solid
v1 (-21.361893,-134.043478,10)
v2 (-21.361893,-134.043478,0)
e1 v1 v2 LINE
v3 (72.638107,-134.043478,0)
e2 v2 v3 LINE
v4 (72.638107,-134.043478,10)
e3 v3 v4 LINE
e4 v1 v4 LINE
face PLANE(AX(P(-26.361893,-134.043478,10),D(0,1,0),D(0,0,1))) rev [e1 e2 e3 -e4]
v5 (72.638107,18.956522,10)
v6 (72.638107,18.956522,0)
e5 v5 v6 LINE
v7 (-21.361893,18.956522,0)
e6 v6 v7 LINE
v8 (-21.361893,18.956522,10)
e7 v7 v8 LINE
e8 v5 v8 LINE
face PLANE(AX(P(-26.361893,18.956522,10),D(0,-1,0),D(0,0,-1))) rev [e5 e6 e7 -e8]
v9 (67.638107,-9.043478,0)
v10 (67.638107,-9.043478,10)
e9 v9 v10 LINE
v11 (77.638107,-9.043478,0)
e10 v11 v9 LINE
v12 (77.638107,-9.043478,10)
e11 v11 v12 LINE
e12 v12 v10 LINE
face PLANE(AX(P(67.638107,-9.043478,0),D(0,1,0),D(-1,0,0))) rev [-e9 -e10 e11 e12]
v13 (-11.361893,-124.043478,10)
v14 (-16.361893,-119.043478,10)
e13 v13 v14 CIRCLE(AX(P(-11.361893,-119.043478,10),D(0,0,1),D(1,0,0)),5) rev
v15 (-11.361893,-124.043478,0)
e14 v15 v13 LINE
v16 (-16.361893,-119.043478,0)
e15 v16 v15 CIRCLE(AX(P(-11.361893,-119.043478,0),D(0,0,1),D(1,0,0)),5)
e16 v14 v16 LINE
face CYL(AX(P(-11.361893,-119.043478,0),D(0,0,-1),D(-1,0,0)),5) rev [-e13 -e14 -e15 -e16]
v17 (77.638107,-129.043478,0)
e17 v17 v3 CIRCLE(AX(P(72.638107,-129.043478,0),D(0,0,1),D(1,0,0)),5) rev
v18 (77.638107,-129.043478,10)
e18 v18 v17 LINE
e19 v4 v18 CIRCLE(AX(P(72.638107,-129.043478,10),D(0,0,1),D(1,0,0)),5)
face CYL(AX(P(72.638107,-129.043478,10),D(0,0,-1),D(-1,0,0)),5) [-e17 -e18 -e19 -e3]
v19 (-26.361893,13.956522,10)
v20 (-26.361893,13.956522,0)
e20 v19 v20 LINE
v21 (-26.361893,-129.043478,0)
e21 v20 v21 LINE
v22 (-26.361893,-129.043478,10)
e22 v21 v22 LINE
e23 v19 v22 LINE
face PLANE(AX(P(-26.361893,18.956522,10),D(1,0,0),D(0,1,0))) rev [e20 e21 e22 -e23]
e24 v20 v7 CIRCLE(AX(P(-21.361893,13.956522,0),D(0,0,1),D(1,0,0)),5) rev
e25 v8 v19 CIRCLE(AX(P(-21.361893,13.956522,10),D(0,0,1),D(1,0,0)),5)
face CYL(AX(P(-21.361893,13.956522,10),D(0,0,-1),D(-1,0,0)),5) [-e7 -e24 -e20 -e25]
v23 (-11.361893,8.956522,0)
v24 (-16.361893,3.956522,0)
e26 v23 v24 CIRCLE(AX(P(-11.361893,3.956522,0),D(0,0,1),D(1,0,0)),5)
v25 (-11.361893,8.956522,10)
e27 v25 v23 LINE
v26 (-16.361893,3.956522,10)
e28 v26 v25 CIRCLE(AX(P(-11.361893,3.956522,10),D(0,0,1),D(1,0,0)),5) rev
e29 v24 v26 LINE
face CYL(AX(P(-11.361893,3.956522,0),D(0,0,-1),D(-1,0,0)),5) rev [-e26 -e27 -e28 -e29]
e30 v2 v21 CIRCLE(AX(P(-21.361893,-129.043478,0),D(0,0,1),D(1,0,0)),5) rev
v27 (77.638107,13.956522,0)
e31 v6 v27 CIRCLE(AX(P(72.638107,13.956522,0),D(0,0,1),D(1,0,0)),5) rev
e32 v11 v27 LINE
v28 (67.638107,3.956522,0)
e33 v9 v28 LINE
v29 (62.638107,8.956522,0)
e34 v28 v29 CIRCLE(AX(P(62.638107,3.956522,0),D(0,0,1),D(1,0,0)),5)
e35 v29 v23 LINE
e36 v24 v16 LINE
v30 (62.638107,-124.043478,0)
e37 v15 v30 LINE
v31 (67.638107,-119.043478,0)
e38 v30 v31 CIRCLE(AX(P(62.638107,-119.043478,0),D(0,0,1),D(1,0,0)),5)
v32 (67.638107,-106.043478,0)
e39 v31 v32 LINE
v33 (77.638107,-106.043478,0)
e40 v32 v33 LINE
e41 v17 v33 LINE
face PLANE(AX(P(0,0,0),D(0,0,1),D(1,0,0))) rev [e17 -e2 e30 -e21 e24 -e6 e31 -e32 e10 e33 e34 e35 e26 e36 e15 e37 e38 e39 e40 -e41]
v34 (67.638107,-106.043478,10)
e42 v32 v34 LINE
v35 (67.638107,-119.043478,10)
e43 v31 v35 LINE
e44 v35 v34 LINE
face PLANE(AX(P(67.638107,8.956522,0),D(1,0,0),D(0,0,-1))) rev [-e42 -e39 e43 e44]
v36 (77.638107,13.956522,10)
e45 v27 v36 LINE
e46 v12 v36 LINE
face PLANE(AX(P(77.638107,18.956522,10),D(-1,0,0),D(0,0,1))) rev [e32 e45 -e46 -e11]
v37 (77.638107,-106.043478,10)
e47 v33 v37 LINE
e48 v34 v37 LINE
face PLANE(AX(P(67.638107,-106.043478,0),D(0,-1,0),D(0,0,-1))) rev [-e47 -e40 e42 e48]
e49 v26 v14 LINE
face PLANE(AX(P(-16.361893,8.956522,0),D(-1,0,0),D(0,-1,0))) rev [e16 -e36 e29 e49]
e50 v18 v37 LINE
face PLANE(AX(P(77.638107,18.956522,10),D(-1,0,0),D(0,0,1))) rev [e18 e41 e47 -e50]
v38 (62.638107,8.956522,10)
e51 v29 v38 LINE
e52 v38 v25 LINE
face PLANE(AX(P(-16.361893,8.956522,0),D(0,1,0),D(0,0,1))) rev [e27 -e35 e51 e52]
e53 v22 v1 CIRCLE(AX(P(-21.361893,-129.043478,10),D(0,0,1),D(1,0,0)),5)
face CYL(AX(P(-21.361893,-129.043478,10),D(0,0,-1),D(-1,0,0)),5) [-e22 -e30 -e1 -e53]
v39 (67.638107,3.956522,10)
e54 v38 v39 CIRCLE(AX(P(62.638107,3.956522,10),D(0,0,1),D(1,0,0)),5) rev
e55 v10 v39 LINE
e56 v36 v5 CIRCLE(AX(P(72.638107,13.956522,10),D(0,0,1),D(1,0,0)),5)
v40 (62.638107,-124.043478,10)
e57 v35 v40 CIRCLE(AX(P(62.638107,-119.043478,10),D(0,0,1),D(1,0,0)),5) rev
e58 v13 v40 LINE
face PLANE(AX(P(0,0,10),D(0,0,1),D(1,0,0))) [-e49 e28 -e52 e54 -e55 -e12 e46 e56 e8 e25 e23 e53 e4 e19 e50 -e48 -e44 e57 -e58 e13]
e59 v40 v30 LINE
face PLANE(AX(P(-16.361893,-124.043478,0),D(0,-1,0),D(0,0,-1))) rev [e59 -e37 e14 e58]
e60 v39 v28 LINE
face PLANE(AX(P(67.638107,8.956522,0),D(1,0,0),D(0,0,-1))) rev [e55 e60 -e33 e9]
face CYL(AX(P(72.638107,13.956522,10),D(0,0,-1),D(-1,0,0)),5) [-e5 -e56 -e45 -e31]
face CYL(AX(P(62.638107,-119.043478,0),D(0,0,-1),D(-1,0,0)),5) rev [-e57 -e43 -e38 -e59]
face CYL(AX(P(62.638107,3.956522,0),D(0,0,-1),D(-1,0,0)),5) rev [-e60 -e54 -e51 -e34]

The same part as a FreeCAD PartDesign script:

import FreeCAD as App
import Part
import Sketcher
from FreeCAD import Vector


def edges_at(feature, points):
    """Names of the edges that pass closest to the given points."""
    edges = feature.Shape.Edges
    near = lambda p: min(range(len(edges)), key=lambda i: edges[i].distToShape(Part.Vertex(*p))[0])
    return sorted({f"Edge{near(p) + 1}" for p in points})


def add_polygon(sketch, points):
    """Adds a closed chain of lines whose ends are joined by coincident constraints."""
    first, n = sketch.GeometryCount, len(points)
    for a, b in zip(points, points[1:] + points[:1]):
        sketch.addGeometry(Part.LineSegment(App.Vector(*a, 0), App.Vector(*b, 0)), False)
    for i in range(n):
        sketch.addConstraint(Sketcher.Constraint("Coincident", first + i, 2, first + (i + 1) % n, 1))

doc = App.newDocument("Part")
params = doc.addObject("Spreadsheet::Sheet", "Params")
for row, (alias, value) in enumerate([
    ("sketch1_width", "104 mm"),
    ("sketch1_height", "153 mm"),
    ("pad1_length", "10 mm"),
    ("sketch2_width", "84 mm"),
    ("sketch2_height", "133 mm"),
    ("sketch3_width", "10 mm"),
    ("sketch3_height", "97 mm"),
    ("fillet_radius", "5 mm"),
    ("fillet2_radius", "5 mm"),
    ("fillet3_radius", "5 mm"),
    ("fillet4_radius", "5 mm"),
], start=1):
    params.set(f"A{row}", alias)
    params.set(f"B{row}", "=" + value)
    params.setAlias(f"B{row}", alias)

body = doc.addObject("PartDesign::Body", "Body")

# Sketch on XY plane
sketch1 = body.newObject("Sketcher::SketchObject", "Sketch")
sketch1.AttachmentSupport = (doc.getObject("XY_Plane"), [""])
sketch1.MapMode = "FlatFace"
add_polygon(sketch1, [(-26, 19), (-26, -134), (78, -134), (78, 19)])  # lines 0-3
sketch1.addConstraint(Sketcher.Constraint("Vertical", 0))
sketch1.addConstraint(Sketcher.Constraint("Horizontal", 1))
sketch1.addConstraint(Sketcher.Constraint("Vertical", 2))
sketch1.addConstraint(Sketcher.Constraint("Horizontal", 3))
sketch1.addConstraint(Sketcher.Constraint("DistanceX", 1, 1, 1, 2, 104.0))
sketch1.addConstraint(Sketcher.Constraint("DistanceY", 0, 2, 0, 1, 153.0))
sketch1.addConstraint(Sketcher.Constraint("DistanceY", 0, 2, -1, 1, 134.043478))
sketch1.addConstraint(Sketcher.Constraint("DistanceX", 0, 2, -1, 1, 26.361893))
sketch1.setExpression("Constraints[8]", "Params.sketch1_width")
sketch1.setExpression("Constraints[9]", "Params.sketch1_height")
pad1 = body.newObject("PartDesign::Pad", "Pad")
pad1.Profile = sketch1
pad1.setExpression("Length", "Params.pad1_length")

# Sketch on XY plane
sketch2 = body.newObject("Sketcher::SketchObject", "Sketch001")
sketch2.AttachmentSupport = (doc.getObject("XY_Plane"), [""])
sketch2.MapMode = "FlatFace"
sketch2.AttachmentOffset = App.Placement(Vector(0, 0, 10), App.Rotation())
add_polygon(sketch2, [(-16, 9), (-16, -124), (68, -124), (68, 9)])  # lines 0-3
sketch2.addConstraint(Sketcher.Constraint("Vertical", 0))
sketch2.addConstraint(Sketcher.Constraint("Horizontal", 1))
sketch2.addConstraint(Sketcher.Constraint("Vertical", 2))
sketch2.addConstraint(Sketcher.Constraint("Horizontal", 3))
sketch2.addConstraint(Sketcher.Constraint("DistanceX", 1, 1, 1, 2, 84.0))
sketch2.addConstraint(Sketcher.Constraint("DistanceY", 0, 2, 0, 1, 133.0))
sketch2.addConstraint(Sketcher.Constraint("DistanceY", 0, 2, -1, 1, 124.043478))
sketch2.addConstraint(Sketcher.Constraint("DistanceX", 0, 2, -1, 1, 16.361893))
sketch2.setExpression("Constraints[8]", "Params.sketch2_width")
sketch2.setExpression("Constraints[9]", "Params.sketch2_height")
pocket1 = body.newObject("PartDesign::Pocket", "Pocket")
pocket1.Profile = sketch2
pocket1.Type = "ThroughAll"
pocket1.Midplane = True

# Sketch on XY plane
sketch3 = body.newObject("Sketcher::SketchObject", "Sketch002")
sketch3.AttachmentSupport = (doc.getObject("XY_Plane"), [""])
sketch3.MapMode = "FlatFace"
sketch3.AttachmentOffset = App.Placement(Vector(0, 0, 10), App.Rotation())
add_polygon(sketch3, [(68, -9), (68, -106), (78, -106), (78, -9)])  # lines 0-3
sketch3.addConstraint(Sketcher.Constraint("Vertical", 0))
sketch3.addConstraint(Sketcher.Constraint("Horizontal", 1))
sketch3.addConstraint(Sketcher.Constraint("Vertical", 2))
sketch3.addConstraint(Sketcher.Constraint("Horizontal", 3))
sketch3.addConstraint(Sketcher.Constraint("DistanceX", 1, 1, 1, 2, 10.0))
sketch3.addConstraint(Sketcher.Constraint("DistanceY", 0, 2, 0, 1, 97.0))
sketch3.addConstraint(Sketcher.Constraint("DistanceY", 0, 2, -1, 1, 106.043478))
sketch3.addConstraint(Sketcher.Constraint("DistanceX", -1, 1, 0, 2, 67.638107))
sketch3.setExpression("Constraints[8]", "Params.sketch3_width")
sketch3.setExpression("Constraints[9]", "Params.sketch3_height")
pocket2 = body.newObject("PartDesign::Pocket", "Pocket001")
pocket2.Profile = sketch3
pocket2.Type = "ThroughAll"
pocket2.Midplane = True
doc.recompute()

fillet = body.newObject("PartDesign::Fillet", "Fillet")
fillet.Base = (pocket2, edges_at(pocket2, [(-16.362, 8.957, 5)]))
fillet.setExpression("Radius", "Params.fillet_radius")
doc.recompute()

fillet2 = body.newObject("PartDesign::Fillet", "Fillet001")
fillet2.Base = (fillet, edges_at(fillet, [(67.638, 8.957, 5), (-26.362, 18.957, 5)]))
fillet2.setExpression("Radius", "Params.fillet2_radius")
doc.recompute()

fillet3 = body.newObject("PartDesign::Fillet", "Fillet002")
fillet3.Base = (fillet2, edges_at(fillet2, [(67.638, -124.043, 5), (77.638, 18.957, 5), (-26.362, -134.043, 5)]))
fillet3.setExpression("Radius", "Params.fillet3_radius")
doc.recompute()

fillet4 = body.newObject("PartDesign::Fillet", "Fillet003")
fillet4.Base = (fillet3, edges_at(fillet3, [(-16.362, -124.043, 5), (77.638, -134.043, 5)]))
fillet4.setExpression("Radius", "Params.fillet4_radius")

doc.recompute()
